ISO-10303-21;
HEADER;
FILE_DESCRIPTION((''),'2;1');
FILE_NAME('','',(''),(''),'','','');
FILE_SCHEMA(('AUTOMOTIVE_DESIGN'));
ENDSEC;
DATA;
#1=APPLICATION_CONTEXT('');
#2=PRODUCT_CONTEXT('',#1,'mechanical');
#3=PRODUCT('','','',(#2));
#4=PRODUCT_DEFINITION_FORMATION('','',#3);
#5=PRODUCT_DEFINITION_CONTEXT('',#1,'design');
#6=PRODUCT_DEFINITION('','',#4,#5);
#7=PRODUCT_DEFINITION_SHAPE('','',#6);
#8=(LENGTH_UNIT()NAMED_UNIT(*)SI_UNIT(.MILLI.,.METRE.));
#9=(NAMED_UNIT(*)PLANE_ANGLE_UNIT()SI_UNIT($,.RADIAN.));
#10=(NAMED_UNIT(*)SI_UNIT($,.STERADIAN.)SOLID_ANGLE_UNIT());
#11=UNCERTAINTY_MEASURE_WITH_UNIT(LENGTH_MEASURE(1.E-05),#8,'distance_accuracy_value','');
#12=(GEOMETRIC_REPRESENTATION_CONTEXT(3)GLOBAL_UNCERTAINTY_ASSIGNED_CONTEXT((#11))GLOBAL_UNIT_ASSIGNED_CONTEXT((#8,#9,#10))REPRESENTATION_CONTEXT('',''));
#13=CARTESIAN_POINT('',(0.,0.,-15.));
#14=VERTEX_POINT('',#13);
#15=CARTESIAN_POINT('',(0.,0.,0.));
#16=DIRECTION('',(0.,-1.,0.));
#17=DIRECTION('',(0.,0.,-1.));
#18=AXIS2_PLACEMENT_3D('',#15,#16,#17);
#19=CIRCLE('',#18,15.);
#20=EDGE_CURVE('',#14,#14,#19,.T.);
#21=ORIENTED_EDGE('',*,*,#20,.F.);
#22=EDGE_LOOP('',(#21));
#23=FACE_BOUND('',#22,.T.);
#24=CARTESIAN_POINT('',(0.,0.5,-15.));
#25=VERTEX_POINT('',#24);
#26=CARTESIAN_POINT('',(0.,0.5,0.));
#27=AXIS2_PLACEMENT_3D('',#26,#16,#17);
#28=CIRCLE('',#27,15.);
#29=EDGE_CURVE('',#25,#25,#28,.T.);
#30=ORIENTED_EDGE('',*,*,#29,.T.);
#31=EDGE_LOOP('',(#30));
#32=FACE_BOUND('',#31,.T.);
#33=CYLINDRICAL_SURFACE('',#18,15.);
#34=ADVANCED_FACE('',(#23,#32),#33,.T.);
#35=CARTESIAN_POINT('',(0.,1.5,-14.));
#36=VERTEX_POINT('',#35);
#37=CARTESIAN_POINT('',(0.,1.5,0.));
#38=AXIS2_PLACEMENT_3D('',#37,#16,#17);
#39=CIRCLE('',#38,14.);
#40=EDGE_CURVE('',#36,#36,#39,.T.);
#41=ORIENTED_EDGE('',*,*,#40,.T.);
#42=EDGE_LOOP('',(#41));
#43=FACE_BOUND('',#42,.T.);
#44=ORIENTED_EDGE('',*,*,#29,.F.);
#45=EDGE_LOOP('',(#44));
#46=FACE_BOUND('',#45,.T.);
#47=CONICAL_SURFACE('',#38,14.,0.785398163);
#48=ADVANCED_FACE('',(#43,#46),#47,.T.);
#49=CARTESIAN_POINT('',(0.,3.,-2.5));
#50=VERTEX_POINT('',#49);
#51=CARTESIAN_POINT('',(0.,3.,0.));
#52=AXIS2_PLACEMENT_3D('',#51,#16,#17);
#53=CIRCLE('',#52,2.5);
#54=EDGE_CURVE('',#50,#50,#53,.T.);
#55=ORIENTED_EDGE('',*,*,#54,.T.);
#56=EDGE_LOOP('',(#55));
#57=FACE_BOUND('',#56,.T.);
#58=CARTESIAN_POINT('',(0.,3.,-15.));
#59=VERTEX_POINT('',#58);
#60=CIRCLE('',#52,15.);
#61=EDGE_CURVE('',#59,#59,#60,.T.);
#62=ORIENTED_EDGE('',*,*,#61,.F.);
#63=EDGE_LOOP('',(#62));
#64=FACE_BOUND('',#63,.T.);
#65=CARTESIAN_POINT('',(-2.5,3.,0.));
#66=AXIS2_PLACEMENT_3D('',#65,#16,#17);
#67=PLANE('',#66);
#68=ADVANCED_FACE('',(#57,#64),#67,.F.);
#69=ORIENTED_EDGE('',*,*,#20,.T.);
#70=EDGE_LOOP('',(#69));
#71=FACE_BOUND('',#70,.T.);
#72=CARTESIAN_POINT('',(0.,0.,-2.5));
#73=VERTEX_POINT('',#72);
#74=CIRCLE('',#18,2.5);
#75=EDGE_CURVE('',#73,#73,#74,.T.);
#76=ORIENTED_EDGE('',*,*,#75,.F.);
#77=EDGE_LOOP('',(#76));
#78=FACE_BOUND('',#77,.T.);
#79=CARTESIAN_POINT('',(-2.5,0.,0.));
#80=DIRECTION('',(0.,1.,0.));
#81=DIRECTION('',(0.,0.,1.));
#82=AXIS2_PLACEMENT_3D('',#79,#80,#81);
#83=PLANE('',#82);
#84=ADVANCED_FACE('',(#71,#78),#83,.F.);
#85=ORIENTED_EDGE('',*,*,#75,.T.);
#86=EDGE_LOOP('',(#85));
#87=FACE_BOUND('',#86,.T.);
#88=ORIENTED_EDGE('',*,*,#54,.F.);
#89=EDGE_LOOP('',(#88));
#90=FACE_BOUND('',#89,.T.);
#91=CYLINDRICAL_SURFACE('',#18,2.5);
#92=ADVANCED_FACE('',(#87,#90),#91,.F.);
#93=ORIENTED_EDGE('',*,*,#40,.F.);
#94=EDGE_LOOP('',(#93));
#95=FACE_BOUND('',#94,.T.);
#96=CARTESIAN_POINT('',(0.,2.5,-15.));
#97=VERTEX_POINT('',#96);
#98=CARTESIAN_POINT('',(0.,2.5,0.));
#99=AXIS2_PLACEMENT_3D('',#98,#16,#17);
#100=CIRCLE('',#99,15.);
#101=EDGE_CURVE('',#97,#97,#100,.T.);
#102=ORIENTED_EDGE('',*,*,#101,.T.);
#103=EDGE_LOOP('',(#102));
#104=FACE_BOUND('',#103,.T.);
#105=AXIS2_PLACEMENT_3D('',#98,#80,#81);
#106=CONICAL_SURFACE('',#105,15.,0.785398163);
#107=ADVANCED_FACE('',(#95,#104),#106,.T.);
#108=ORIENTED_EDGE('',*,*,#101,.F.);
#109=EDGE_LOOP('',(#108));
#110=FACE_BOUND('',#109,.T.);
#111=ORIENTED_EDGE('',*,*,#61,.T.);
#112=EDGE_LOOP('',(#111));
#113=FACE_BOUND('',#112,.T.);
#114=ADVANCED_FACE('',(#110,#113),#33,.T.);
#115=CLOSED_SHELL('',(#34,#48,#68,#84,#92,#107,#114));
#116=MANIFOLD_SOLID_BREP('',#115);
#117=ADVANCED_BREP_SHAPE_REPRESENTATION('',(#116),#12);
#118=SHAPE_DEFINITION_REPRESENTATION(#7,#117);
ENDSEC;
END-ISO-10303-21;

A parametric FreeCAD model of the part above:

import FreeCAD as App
import Part
import Sketcher

V = App.Vector


def add_polygon(sketch, points):
    """Adds a closed chain of lines whose ends are joined by coincident constraints."""
    first, n = sketch.GeometryCount, len(points)
    for a, b in zip(points, points[1:] + points[:1]):
        sketch.addGeometry(Part.LineSegment(App.Vector(*a, 0), App.Vector(*b, 0)), False)
    for i in range(n):
        sketch.addConstraint(Sketcher.Constraint("Coincident", first + i, 2, first + (i + 1) % n, 1))

doc = App.newDocument("Part")
body = doc.addObject("PartDesign::Body", "Body")

# Sketch on XY plane
sketch1 = body.newObject("Sketcher::SketchObject", "Sketch")
sketch1.AttachmentSupport = (doc.getObject("XY_Plane"), [""])
sketch1.MapMode = "FlatFace"
add_polygon(sketch1, [(-2.5, 0), (-2.5, 3), (-15, 3), (-15, 2.5), (-14, 1.5), (-15, 0.5), (-15, 0)])  # lines 0-6
sketch1.addConstraint([
    Sketcher.Constraint("Vertical", 0),
    Sketcher.Constraint("Horizontal", 1),
    Sketcher.Constraint("Vertical", 2),
    Sketcher.Constraint("Vertical", 5),
    Sketcher.Constraint("Horizontal", 6),
    Sketcher.Constraint("PointOnObject", 5, 2, -1),
    Sketcher.Constraint("Perpendicular", 3, 4),
    Sketcher.Constraint("Vertical", 2, 2, 4, 2),
    Sketcher.Constraint("Equal", 2, 5),
    Sketcher.Constraint("Equal", 3, 4),
    Sketcher.Constraint("DistanceY", 0, 1, 0, 2, 3.0),
    Sketcher.Constraint("DistanceX", 1, 2, 1, 1, 12.5),
    Sketcher.Constraint("DistanceY", 2, 2, 2, 1, 0.5),
    Sketcher.Constraint("DistanceX", 1, 2, -1, 1, 15.0),
])
revolution = body.newObject("PartDesign::Revolution", "Revolution")
revolution.Profile = sketch1
revolution.ReferenceAxis = (sketch1, ["V_Axis"])
revolution.Angle = 360

doc.recompute()
